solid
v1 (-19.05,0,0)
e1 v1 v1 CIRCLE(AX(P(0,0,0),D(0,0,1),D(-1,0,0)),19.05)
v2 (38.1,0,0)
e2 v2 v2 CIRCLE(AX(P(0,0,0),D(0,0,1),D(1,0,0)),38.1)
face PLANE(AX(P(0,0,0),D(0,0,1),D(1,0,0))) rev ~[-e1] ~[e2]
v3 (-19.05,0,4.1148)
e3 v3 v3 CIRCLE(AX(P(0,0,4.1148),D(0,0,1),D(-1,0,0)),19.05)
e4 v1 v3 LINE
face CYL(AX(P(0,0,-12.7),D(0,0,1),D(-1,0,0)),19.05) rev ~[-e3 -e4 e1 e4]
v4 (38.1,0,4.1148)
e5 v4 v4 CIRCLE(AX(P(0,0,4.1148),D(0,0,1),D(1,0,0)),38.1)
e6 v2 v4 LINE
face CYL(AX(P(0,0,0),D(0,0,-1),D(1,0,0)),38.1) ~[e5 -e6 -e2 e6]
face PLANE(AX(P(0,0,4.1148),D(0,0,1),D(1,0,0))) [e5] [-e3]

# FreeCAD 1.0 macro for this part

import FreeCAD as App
import Part
import Sketcher

V = App.Vector
Q = App.Units.Quantity

doc = App.newDocument("Part")
body = doc.addObject("PartDesign::Body", "Body")

sketch1 = body.newObject("Sketcher::SketchObject", "Sketch")
sketch1.AttachmentSupport = (doc.getObject("XY_Plane"), [""])
sketch1.MapMode = "FlatFace"
sketch1.addGeometry(Part.Circle(V(0, 0, 0), V(0, 0, 1), 38), False)
sketch1.addConstraint(Sketcher.Constraint("Coincident", 0, 3, -1, 1))
sketch1.addConstraint(Sketcher.Constraint("Diameter", 0, Q("3 in")))
pad1 = body.newObject("PartDesign::Pad", "Pad")
pad1.Profile = sketch1
pad1.Length = Q("0.162 in")

sketch2 = body.newObject("Sketcher::SketchObject", "Sketch001")
sketch2.AttachmentSupport = (doc.getObject("XY_Plane"), [""])
sketch2.MapMode = "FlatFace"
sketch2.addGeometry(Part.Circle(V(0, 0, 0), V(0, 0, 1), 19), False)
sketch2.addConstraint(Sketcher.Constraint("Coincident", 0, 3, -1, 1))
sketch2.addConstraint(Sketcher.Constraint("Diameter", 0, Q("1.5 in")))
doc.recompute()
hole = body.newObject("PartDesign::Hole", "Hole")
hole.Profile = sketch2
hole.ThreadType = "None"
hole.Diameter = Q("1.5 in")
hole.DepthType = "Dimension"
hole.Depth = Q("0.5 in")
hole.DrillPoint = "Flat"
hole.Reversed = True

doc.recompute()
